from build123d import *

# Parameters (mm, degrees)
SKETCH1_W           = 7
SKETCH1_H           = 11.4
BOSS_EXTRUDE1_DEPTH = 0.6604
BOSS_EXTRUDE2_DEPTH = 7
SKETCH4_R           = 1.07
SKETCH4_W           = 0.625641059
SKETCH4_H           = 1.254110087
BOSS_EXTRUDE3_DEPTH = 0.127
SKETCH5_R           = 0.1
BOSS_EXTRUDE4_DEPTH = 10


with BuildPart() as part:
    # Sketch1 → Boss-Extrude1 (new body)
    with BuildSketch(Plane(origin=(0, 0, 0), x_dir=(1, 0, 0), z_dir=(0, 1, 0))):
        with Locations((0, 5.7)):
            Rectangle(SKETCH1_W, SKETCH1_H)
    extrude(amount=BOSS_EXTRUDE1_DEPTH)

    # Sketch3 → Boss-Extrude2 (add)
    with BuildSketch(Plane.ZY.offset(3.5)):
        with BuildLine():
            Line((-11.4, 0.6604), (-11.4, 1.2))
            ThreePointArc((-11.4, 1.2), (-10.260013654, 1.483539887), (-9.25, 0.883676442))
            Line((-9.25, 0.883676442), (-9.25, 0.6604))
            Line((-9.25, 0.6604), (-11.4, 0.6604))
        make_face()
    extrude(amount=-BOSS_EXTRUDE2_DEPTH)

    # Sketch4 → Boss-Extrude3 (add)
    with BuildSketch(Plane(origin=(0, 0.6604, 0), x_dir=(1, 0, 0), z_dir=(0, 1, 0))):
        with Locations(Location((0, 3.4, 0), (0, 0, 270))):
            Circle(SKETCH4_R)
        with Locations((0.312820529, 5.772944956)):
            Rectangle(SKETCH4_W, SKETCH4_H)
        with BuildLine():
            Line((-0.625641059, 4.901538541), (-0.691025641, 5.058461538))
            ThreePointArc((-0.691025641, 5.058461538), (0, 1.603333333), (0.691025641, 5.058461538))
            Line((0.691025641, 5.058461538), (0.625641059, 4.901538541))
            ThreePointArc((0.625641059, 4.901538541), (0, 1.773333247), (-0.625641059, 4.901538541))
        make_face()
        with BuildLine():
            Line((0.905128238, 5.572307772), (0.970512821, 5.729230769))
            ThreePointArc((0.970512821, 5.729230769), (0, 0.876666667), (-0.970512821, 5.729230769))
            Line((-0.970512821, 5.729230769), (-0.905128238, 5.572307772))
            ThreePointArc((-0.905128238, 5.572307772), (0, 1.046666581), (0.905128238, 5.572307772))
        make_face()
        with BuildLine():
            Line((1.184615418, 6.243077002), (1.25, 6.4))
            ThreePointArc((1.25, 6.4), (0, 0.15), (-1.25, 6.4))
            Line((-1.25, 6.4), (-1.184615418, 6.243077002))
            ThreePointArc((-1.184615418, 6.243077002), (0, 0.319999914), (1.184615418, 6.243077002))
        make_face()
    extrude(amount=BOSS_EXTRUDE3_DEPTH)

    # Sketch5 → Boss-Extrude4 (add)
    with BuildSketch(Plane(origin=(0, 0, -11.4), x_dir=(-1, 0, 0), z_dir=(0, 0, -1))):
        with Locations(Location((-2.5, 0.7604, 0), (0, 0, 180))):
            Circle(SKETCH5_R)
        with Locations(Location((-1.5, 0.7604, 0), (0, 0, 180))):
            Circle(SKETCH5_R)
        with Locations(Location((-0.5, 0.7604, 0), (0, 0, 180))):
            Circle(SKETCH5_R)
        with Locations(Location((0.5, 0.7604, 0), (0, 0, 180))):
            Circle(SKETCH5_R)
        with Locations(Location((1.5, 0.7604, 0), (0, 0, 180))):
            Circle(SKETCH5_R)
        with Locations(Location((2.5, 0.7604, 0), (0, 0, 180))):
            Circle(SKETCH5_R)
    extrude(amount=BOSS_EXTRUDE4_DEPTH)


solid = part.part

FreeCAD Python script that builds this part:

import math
import FreeCAD as App
import Part
import Sketcher


def add_polygon(sketch, points):
    """Adds a closed chain of lines whose ends are joined by coincident constraints."""
    first, n = sketch.GeometryCount, len(points)
    for a, b in zip(points, points[1:] + points[:1]):
        sketch.addGeometry(Part.LineSegment(App.Vector(*a, 0), App.Vector(*b, 0)), False)
    for i in range(n):
        sketch.addConstraint(Sketcher.Constraint("Coincident", first + i, 2, first + (i + 1) % n, 1))

doc = App.newDocument("Part")
body = doc.addObject("PartDesign::Body", "Body")

# Sketch on XZ plane
sketch1 = doc.addObject("Sketcher::SketchObject", "Sketch")
body.addObject(sketch1)
sketch1.AttachmentSupport = (doc.XZ_Plane, [""])
sketch1.MapMode = "FlatFace"
add_polygon(sketch1, [(-3.5, -11.4), (-3.5, 0), (3.5, 0), (3.5, -11.4)])  # lines 0-3
sketch1.addConstraint([
    Sketcher.Constraint("Vertical", 0),
    Sketcher.Constraint("Horizontal", 1),
    Sketcher.Constraint("Vertical", 2),
    Sketcher.Constraint("Horizontal", 3),
    Sketcher.Constraint("Symmetric", 0, 2, 1, 2, -1, 1),
    Sketcher.Constraint("DistanceX", 1, 1, 1, 2, 7.0),
    Sketcher.Constraint("DistanceY", 0, 1, 0, 2, 11.4),
])
pad1 = doc.addObject("PartDesign::Pad", "Pad")
body.addObject(pad1)
pad1.Profile = sketch1
pad1.Length = 0.6604
pad1.Reversed = True

# Sketch on YZ plane
sketch2 = doc.addObject("Sketcher::SketchObject", "Sketch001")
body.addObject(sketch2)
sketch2.AttachmentSupport = (doc.YZ_Plane, [""])
sketch2.MapMode = "FlatFace"
sketch2.AttachmentOffset = App.Placement(App.Vector(0, 0, -3.5), App.Rotation())
sketch2.addGeometry([
    Part.LineSegment(App.Vector(1.2, -11.4, 0), App.Vector(0.6604, -11.4, 0)),
    Part.LineSegment(App.Vector(0.6604, -11.4, 0), App.Vector(0.6604, -9.25, 0)),
    Part.LineSegment(App.Vector(0.6604, -9.25, 0), App.Vector(0.883676, -9.25, 0)),
    Part.ArcOfCircle(Part.Circle(App.Vector(-0.045462, -10.484971, 0), App.Vector(0, 0, 1), 1.545462), math.radians(-36.304354), math.radians(53.0438)),
], False)
sketch2.addConstraint([
    Sketcher.Constraint("Coincident", 0, 2, 1, 1),
    Sketcher.Constraint("Coincident", 1, 2, 2, 1),
    Sketcher.Constraint("Coincident", 2, 2, 3, 2),
    Sketcher.Constraint("Coincident", 3, 1, 0, 1),
    Sketcher.Constraint("Horizontal", 0),
    Sketcher.Constraint("Vertical", 1),
    Sketcher.Constraint("Horizontal", 2),
    Sketcher.Constraint("DistanceY", 1, 1, 1, 2, 2.15),
    Sketcher.Constraint("DistanceY", 0, 2, -1, 1, 11.4),
    Sketcher.Constraint("DistanceX", -1, 1, 3, 1, 1.2),
    Sketcher.Constraint("Radius", 3, 1.545462),
    Sketcher.Constraint("DistanceX", 0, 2, 0, 1, 0.5396),
    Sketcher.Constraint("DistanceX", 2, 1, 2, 2, 0.223276),
])
pad2 = doc.addObject("PartDesign::Pad", "Pad001")
body.addObject(pad2)
pad2.Profile = sketch2
pad2.Length = 7

# Sketch on XZ plane
sketch3 = doc.addObject("Sketcher::SketchObject", "Sketch002")
body.addObject(sketch3)
sketch3.AttachmentSupport = (doc.XZ_Plane, [""])
sketch3.MapMode = "FlatFace"
sketch3.AttachmentOffset = App.Placement(App.Vector(0, 0, -0.6604), App.Rotation())
sketch3.addGeometry(Part.Circle(App.Vector(0, -3.4, 0), App.Vector(0, 0, 1), 1.07), False)  # 0
add_polygon(sketch3, [(0, -6.4), (0, -5.14589), (0.625641, -5.14589), (0.625641, -6.4)])  # lines 1-4
sketch3.addGeometry(Part.LineSegment(App.Vector(-0.625641, -4.901539, 0), App.Vector(-0.691026, -5.058462, 0)), False)  # 5
sketch3.addGeometry(Part.ArcOfCircle(Part.Circle(App.Vector(0, -3.4, 0), App.Vector(0, 0, 1), 1.796667), math.radians(-67.380135), math.radians(247.380135)), False)  # 6
sketch3.addGeometry(Part.LineSegment(App.Vector(0.691026, -5.058462, 0), App.Vector(0.625641, -4.901539, 0)), False)  # 7
sketch3.addGeometry(Part.ArcOfCircle(Part.Circle(App.Vector(0, -3.4, 0), App.Vector(0, 0, 1), 1.626667), math.radians(-67.380135), math.radians(247.380135)), False)  # 8
sketch3.addGeometry(Part.LineSegment(App.Vector(0.970513, -5.729231, 0), App.Vector(0.905128, -5.572308, 0)), False)  # 9
sketch3.addGeometry(Part.ArcOfCircle(Part.Circle(App.Vector(0, -3.4, 0), App.Vector(0, 0, 1), 2.353333), math.radians(-67.380135), math.radians(247.380135)), False)  # 10
sketch3.addGeometry(Part.LineSegment(App.Vector(-0.905128, -5.572308, 0), App.Vector(-0.970513, -5.729231, 0)), False)  # 11
sketch3.addGeometry(Part.ArcOfCircle(Part.Circle(App.Vector(0, -3.4, 0), App.Vector(0, 0, 1), 2.523333), math.radians(-67.380135), math.radians(247.380135)), False)  # 12
sketch3.addGeometry(Part.LineSegment(App.Vector(1.25, -6.4, 0), App.Vector(1.184615, -6.243077, 0)), False)  # 13
sketch3.addGeometry(Part.ArcOfCircle(Part.Circle(App.Vector(0, -3.4, 0), App.Vector(0, 0, 1), 3.08), math.radians(-67.380135), math.radians(247.380135)), False)  # 14
sketch3.addGeometry(Part.LineSegment(App.Vector(-1.184615, -6.243077, 0), App.Vector(-1.25, -6.4, 0)), False)  # 15
sketch3.addGeometry(Part.ArcOfCircle(Part.Circle(App.Vector(0, -3.4, 0), App.Vector(0, 0, 1), 3.25), math.radians(-67.380135), math.radians(247.380135)), False)  # 16
sketch3.addConstraint([
    Sketcher.Constraint("Coincident", 5, 2, 6, 2),
    Sketcher.Constraint("Coincident", 6, 1, 7, 1),
    Sketcher.Constraint("Coincident", 7, 2, 8, 1),
    Sketcher.Constraint("Coincident", 8, 2, 5, 1),
    Sketcher.Constraint("Coincident", 9, 2, 10, 1),
    Sketcher.Constraint("Coincident", 10, 2, 11, 1),
    Sketcher.Constraint("Coincident", 11, 2, 12, 2),
    Sketcher.Constraint("Coincident", 12, 1, 9, 1),
    Sketcher.Constraint("Coincident", 13, 2, 14, 1),
    Sketcher.Constraint("Coincident", 14, 2, 15, 1),
    Sketcher.Constraint("Coincident", 15, 2, 16, 2),
    Sketcher.Constraint("Coincident", 16, 1, 13, 1),
    Sketcher.Constraint("Vertical", 1),
    Sketcher.Constraint("Horizontal", 2),
    Sketcher.Constraint("Vertical", 3),
    Sketcher.Constraint("Horizontal", 4),
    Sketcher.Constraint("Coincident", 6, 3, 0, 3),
    Sketcher.Constraint("Coincident", 8, 3, 0, 3),
    Sketcher.Constraint("Coincident", 10, 3, 0, 3),
    Sketcher.Constraint("Coincident", 12, 3, 0, 3),
    Sketcher.Constraint("Coincident", 14, 3, 0, 3),
    Sketcher.Constraint("Coincident", 16, 3, 0, 3),
    Sketcher.Constraint("Symmetric", 5, 2, 6, 1, -2),
    Sketcher.Constraint("PointOnObject", 1, 2, -2),
    Sketcher.Constraint("Parallel", 7, 9),
    Sketcher.Constraint("Parallel", 5, 11),
    Sketcher.Constraint("Parallel", 9, 13),
    Sketcher.Constraint("Parallel", 11, 15),
    Sketcher.Constraint("Horizontal", 7, 2, 8, 2),
    Sketcher.Constraint("Horizontal", 9, 2, 10, 2),
    Sketcher.Constraint("Horizontal", 13, 2, 14, 2),
    Sketcher.Constraint("Horizontal", 4, 2, 15, 2),
    Sketcher.Constraint("Vertical", 3, 2, 7, 2),
    Sketcher.Constraint("Equal", 7, 9),
    Sketcher.Constraint("Equal", 11, 13),
    Sketcher.Constraint("Diameter", 0, 2.14),
    Sketcher.Constraint("Radius", 14, 3.08),
    Sketcher.Constraint("Radius", 16, 3.25),
    Sketcher.Constraint("DistanceY", 3, 2, 0, 3, 3.0),
    Sketcher.Constraint("DistanceY", 0, 3, -1, 1, 3.4),
    Sketcher.Constraint("Radius", 6, 1.796667),
    Sketcher.Constraint("Radius", 10, 2.353333),
    Sketcher.Constraint("DistanceX", 2, 1, 2, 2, 0.625641),
    Sketcher.Constraint("DistanceY", 1, 1, 1, 2, 1.25411),
    Sketcher.Constraint("DistanceY", 5, 2, -1, 1, 5.058462),
    Sketcher.Constraint("DistanceX", -1, 1, 9, 2, 0.905128),
])
pad3 = doc.addObject("PartDesign::Pad", "Pad002")
body.addObject(pad3)
pad3.Profile = sketch3
pad3.Length = 0.127
pad3.Reversed = True

# Sketch on XY plane
sketch4 = doc.addObject("Sketcher::SketchObject", "Sketch003")
body.addObject(sketch4)
sketch4.AttachmentSupport = (doc.XY_Plane, [""])
sketch4.MapMode = "FlatFace"
sketch4.AttachmentOffset = App.Placement(App.Vector(0, 0, -11.4), App.Rotation())
sketch4.addGeometry([
    Part.Circle(App.Vector(2.5, 0.7604, 0), App.Vector(0, 0, 1), 0.1),  # 0
    Part.Circle(App.Vector(1.5, 0.7604, 0), App.Vector(0, 0, 1), 0.1),  # 1
    Part.Circle(App.Vector(0.5, 0.7604, 0), App.Vector(0, 0, 1), 0.1),  # 2
    Part.Circle(App.Vector(-0.5, 0.7604, 0), App.Vector(0, 0, 1), 0.1),  # 3
    Part.Circle(App.Vector(-1.5, 0.7604, 0), App.Vector(0, 0, 1), 0.1),  # 4
    Part.Circle(App.Vector(-2.5, 0.7604, 0), App.Vector(0, 0, 1), 0.1),  # 5
], False)
sketch4.addConstraint([
    Sketcher.Constraint("Equal", 0, 1),
    Sketcher.Constraint("Equal", 1, 2),
    Sketcher.Constraint("Equal", 2, 3),
    Sketcher.Constraint("Equal", 3, 4),
    Sketcher.Constraint("Equal", 4, 5),
    Sketcher.Constraint("Symmetric", 2, 3, 3, 3, -2),
    Sketcher.Constraint("Symmetric", 1, 3, 4, 3, -2),
    Sketcher.Constraint("Symmetric", 0, 3, 5, 3, -2),
    Sketcher.Constraint("Horizontal", 0, 3, 1, 3),
    Sketcher.Constraint("Horizontal", 1, 3, 2, 3),
    Sketcher.Constraint("Diameter", 0, 0.2),
    Sketcher.Constraint("DistanceX", 1, 3, 0, 3, 1.0),
    Sketcher.Constraint("DistanceX", 2, 3, 1, 3, 1.0),
    Sketcher.Constraint("DistanceX", 3, 3, 2, 3, 1.0),
    Sketcher.Constraint("DistanceY", -1, 1, 0, 3, 0.7604),
])
pad4 = doc.addObject("PartDesign::Pad", "Pad003")
body.addObject(pad4)
pad4.Profile = sketch4
pad4.Length = 10
pad4.Reversed = True

doc.recompute()
